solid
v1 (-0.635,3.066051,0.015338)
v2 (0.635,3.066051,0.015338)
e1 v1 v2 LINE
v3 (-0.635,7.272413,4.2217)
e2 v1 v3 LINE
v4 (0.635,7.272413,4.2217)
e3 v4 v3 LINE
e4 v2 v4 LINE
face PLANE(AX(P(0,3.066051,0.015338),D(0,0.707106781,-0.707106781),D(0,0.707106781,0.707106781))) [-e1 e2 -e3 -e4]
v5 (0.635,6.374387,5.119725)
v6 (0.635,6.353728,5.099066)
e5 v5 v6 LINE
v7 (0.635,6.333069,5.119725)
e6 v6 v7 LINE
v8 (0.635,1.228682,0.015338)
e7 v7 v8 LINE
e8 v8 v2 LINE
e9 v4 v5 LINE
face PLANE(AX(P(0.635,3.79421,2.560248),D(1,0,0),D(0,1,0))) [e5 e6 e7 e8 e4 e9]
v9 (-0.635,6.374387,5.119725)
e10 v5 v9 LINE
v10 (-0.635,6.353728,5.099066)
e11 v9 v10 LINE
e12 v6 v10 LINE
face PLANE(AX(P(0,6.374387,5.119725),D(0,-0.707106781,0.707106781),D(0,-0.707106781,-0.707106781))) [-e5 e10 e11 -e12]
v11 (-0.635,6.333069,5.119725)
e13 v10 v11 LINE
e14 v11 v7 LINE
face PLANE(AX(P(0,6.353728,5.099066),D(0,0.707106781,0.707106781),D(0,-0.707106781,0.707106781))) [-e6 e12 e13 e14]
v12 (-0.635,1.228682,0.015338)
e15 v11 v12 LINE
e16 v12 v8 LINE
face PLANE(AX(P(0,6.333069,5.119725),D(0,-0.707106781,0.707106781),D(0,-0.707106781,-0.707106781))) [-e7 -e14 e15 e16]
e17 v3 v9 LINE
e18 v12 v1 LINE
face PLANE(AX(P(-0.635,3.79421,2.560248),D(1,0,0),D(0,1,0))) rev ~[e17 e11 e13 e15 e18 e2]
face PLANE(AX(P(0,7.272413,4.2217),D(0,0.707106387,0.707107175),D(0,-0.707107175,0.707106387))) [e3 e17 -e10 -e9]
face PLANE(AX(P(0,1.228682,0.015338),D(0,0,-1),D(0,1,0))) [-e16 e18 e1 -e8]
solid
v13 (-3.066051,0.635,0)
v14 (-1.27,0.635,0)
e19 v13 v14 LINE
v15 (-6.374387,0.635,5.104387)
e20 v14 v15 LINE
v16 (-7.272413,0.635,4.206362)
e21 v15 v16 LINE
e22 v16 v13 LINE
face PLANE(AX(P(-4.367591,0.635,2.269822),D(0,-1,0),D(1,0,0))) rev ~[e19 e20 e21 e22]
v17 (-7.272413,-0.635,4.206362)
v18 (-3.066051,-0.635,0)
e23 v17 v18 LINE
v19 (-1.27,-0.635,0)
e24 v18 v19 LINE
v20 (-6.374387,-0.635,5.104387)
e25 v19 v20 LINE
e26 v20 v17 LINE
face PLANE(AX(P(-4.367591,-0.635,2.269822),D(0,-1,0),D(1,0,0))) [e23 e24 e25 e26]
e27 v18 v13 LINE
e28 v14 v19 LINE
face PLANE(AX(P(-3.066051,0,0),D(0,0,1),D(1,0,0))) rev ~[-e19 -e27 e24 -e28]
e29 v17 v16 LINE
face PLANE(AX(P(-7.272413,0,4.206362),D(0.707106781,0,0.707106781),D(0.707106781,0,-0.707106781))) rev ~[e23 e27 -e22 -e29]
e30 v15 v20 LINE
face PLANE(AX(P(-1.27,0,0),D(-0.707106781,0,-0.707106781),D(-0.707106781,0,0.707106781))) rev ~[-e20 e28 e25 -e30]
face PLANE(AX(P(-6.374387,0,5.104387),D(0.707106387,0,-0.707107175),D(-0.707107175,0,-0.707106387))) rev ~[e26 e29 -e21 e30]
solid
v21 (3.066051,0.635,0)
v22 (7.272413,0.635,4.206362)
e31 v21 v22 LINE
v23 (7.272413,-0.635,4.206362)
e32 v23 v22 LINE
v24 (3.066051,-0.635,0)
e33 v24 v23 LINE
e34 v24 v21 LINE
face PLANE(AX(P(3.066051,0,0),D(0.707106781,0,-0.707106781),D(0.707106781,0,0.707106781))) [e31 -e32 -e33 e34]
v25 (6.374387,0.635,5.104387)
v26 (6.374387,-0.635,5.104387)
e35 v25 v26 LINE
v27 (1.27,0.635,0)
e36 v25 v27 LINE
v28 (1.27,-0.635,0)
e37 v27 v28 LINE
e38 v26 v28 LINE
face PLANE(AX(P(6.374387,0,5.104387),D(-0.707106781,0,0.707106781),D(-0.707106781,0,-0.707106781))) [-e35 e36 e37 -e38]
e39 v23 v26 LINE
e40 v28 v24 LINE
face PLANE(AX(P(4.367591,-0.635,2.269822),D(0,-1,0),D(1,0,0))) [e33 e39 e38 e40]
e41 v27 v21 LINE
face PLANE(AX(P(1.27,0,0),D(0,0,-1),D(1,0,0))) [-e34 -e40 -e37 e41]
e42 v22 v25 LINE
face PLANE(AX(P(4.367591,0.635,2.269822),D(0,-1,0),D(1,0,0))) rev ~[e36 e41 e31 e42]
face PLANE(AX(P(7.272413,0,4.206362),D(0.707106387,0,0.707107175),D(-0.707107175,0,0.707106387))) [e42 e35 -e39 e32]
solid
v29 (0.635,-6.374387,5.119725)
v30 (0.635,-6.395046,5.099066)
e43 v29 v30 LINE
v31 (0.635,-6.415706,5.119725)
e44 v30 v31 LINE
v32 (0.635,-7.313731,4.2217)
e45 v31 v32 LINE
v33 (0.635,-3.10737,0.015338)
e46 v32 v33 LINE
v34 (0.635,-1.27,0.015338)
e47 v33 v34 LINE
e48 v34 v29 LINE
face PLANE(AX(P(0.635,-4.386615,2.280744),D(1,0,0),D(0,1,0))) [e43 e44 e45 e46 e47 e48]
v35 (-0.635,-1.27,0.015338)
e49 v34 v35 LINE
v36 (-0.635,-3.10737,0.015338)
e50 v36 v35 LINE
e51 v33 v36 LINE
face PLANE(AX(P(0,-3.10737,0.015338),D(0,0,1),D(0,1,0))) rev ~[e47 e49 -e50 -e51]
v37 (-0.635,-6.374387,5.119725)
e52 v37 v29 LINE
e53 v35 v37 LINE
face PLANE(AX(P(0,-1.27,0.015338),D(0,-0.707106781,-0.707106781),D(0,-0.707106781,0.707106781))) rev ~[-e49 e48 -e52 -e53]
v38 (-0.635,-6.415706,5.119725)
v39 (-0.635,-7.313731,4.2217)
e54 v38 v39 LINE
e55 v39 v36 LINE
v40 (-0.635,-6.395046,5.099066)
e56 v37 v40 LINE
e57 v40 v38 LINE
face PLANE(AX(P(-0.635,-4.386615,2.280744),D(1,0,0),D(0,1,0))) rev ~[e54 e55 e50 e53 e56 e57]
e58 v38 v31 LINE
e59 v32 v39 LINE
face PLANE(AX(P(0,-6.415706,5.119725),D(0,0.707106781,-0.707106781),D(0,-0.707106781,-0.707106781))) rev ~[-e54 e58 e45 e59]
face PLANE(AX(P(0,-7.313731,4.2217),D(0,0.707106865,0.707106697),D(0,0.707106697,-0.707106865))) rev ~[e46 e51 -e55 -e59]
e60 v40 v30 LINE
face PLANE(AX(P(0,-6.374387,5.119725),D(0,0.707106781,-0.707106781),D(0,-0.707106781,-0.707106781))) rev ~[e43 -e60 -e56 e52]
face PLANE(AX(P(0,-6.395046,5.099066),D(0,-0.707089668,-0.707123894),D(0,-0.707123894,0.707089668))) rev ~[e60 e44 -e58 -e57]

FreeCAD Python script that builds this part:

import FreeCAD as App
import Part
import Sketcher
Q = App.Units.Quantity


def add_polygon(sketch, points):
    """Adds a closed chain of lines whose ends are joined by coincident constraints."""
    first, n = sketch.GeometryCount, len(points)
    for a, b in zip(points, points[1:] + points[:1]):
        sketch.addGeometry(Part.LineSegment(App.Vector(*a, 0), App.Vector(*b, 0)), False)
    for i in range(n):
        sketch.addConstraint(Sketcher.Constraint("Coincident", first + i, 2, first + (i + 1) % n, 1))

doc = App.newDocument("Part")
params = doc.addObject("Spreadsheet::Sheet", "Params")
for row, (alias, value) in enumerate([
    ("sketch1_length", "0.05 in"),
    ("pad1_length", "0.05 in"),
    ("sketch2_length", "0.05 in"),
    ("pad2_length", "0.05 in"),
], start=1):
    params.set(f"A{row}", alias)
    params.set(f"B{row}", "=" + value)
    params.setAlias(f"B{row}", alias)

body = doc.addObject("PartDesign::Body", "Body")
body.AllowCompound = True

sketch1 = doc.addObject("Sketcher::SketchObject", "Sketch")
body.addObject(sketch1)
sketch1.AttachmentSupport = (doc.XZ_Plane, [""])
sketch1.MapMode = "FlatFace"
add_polygon(sketch1, [(-3.1, 0), (-1.3, 0), (-6.4, 5.1), (-7.3, 4.2)])
add_polygon(sketch1, [(7.3, 4.2), (6.4, 5.1), (1.3, 0), (3.1, 0)])
sketch1.addConstraint(Sketcher.Constraint("Horizontal", 0))
sketch1.addConstraint(Sketcher.Constraint("Horizontal", 6))
sketch1.addConstraint(Sketcher.Constraint("Symmetric", 0, 2, 5, 2, -1, 1))
sketch1.addConstraint(Sketcher.Constraint("Symmetric", 1, 2, 4, 2, -2))
sketch1.addConstraint(Sketcher.Constraint("Symmetric", 3, 2, 6, 2, -2))
sketch1.addConstraint(Sketcher.Constraint("Symmetric", 2, 2, 7, 2, -2))
sketch1.addConstraint(Sketcher.Constraint("Perpendicular", 1, 2))
sketch1.addConstraint(Sketcher.Constraint("Perpendicular", 2, 3))
sketch1.addConstraint(Sketcher.Constraint("Parallel", 3, 4))
sketch1.addConstraint(Sketcher.Constraint("DistanceX", 0, 2, 5, 2, Q("0.1 in")))
sketch1.addConstraint(Sketcher.Constraint("Distance", 2, Q("0.05 in")))
sketch1.addConstraint(Sketcher.Constraint("DistanceX", 2, 2, 4, 2, Q("13.6468 mm")))
sketch1.setExpression("Constraints[18]", "Params.sketch1_length")
pad1 = doc.addObject("PartDesign::Pad", "Pad")
body.addObject(pad1)
pad1.Profile = sketch1
pad1.setExpression("Length", "Params.pad1_length")
pad1.Midplane = True
body2 = doc.addObject("PartDesign::Body", "Body001")
body2.AllowCompound = True

sketch2 = doc.addObject("Sketcher::SketchObject", "Sketch001")
body2.addObject(sketch2)
sketch2.AttachmentSupport = (doc.getObject("YZ_Plane001"), [""])
sketch2.MapMode = "FlatFace"
add_polygon(sketch2, [(-1.27, 0.015), (-6.374, 5.12), (-6.395, 5.099), (-6.416, 5.12), (-7.314, 4.222), (-3.107, 0.015)])
add_polygon(sketch2, [(6.354, 5.099), (6.333, 5.12), (1.229, 0.015), (3.066, 0.015), (7.272, 4.222), (6.374, 5.12)])
sketch2.addConstraint(Sketcher.Constraint("Horizontal", 5))
sketch2.addConstraint(Sketcher.Constraint("Horizontal", 8))
sketch2.addConstraint(Sketcher.Constraint("Symmetric", 0, 2, 10, 2, -2))
sketch2.addConstraint(Sketcher.Constraint("Perpendicular", 0, 1))
sketch2.addConstraint(Sketcher.Constraint("Parallel", 1, 3))
sketch2.addConstraint(Sketcher.Constraint("Perpendicular", 3, 4))
sketch2.addConstraint(Sketcher.Constraint("Parallel", 4, 6))
sketch2.addConstraint(Sketcher.Constraint("Perpendicular", 6, 7))
sketch2.addConstraint(Sketcher.Constraint("Parallel", 7, 9))
sketch2.addConstraint(Sketcher.Constraint("Perpendicular", 9, 10))
sketch2.addConstraint(Sketcher.Constraint("Perpendicular", 10, 11))
sketch2.addConstraint(Sketcher.Constraint("Horizontal", 0, 2, 2, 2))
sketch2.addConstraint(Sketcher.Constraint("Horizontal", 2, 2, 6, 2))
sketch2.addConstraint(Sketcher.Constraint("Horizontal", 5, 2, 7, 2))
sketch2.addConstraint(Sketcher.Constraint("Horizontal", 3, 2, 9, 2))
sketch2.addConstraint(Sketcher.Constraint("Horizontal", 1, 2, 11, 2))
sketch2.addConstraint(Sketcher.Constraint("Equal", 5, 8))
sketch2.addConstraint(Sketcher.Constraint("Equal", 0, 7))
sketch2.addConstraint(Sketcher.Constraint("Distance", 3, Q("0.05 in")))
sketch2.addConstraint(Sketcher.Constraint("DistanceX", 5, 2, -1, 1, Q("0.05 in")))
sketch2.addConstraint(Sketcher.Constraint("DistanceX", 5, 1, 5, 2, Q("1.83737 mm")))
sketch2.addConstraint(Sketcher.Constraint("DistanceY", -1, 1, 3, 2, Q("4.2217 mm")))
sketch2.addConstraint(Sketcher.Constraint("DistanceX", 3, 2, -1, 1, Q("7.313731 mm")))
sketch2.setExpression("Constraints[30]", "Params.sketch2_length")
pad2 = doc.addObject("PartDesign::Pad", "Pad001")
body2.addObject(pad2)
pad2.Profile = sketch2
pad2.setExpression("Length", "Params.pad2_length")
pad2.Midplane = True

doc.recompute()
